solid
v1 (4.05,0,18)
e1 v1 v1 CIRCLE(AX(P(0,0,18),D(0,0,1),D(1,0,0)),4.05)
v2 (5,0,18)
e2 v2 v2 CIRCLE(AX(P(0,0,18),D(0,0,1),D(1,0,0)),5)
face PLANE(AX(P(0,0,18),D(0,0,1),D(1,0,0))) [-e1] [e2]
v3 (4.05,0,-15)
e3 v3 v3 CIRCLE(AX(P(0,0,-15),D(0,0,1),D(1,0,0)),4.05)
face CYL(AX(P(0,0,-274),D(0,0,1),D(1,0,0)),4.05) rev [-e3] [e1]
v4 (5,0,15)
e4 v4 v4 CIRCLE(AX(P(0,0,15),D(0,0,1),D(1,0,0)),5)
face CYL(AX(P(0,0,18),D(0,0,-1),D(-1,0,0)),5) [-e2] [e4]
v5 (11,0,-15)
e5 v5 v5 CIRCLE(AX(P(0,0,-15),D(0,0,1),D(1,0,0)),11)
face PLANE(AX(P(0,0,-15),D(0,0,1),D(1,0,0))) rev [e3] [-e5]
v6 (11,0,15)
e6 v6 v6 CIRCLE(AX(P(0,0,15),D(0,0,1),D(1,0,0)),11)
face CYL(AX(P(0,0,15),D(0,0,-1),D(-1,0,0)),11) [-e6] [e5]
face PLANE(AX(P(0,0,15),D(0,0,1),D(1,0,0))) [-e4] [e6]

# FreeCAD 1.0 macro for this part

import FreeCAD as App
import Part
import Sketcher

V = App.Vector
Q = App.Units.Quantity

doc = App.newDocument("Part")
body = doc.addObject("PartDesign::Body", "Body")

sketch1 = body.newObject("Sketcher::SketchObject", "Sketch")
sketch1.AttachmentSupport = (doc.getObject("XY_Plane"), [""])
sketch1.MapMode = "FlatFace"
sketch1.addGeometry(Part.Circle(V(0, 0, 0), V(0, 0, 1), 11), False)
sketch1.addConstraint([
    Sketcher.Constraint("Coincident", 0, 3, -1, 1),
    Sketcher.Constraint("Diameter", 0, Q("22 mm")),
])
pad1 = body.newObject("PartDesign::Pad", "Pad")
pad1.Profile = sketch1
pad1.Length = 30
pad1.Midplane = True

sketch2 = body.newObject("Sketcher::SketchObject", "Sketch001")
sketch2.AttachmentSupport = (doc.getObject("XY_Plane"), [""])
sketch2.MapMode = "FlatFace"
sketch2.AttachmentOffset = App.Placement(V(0, 0, 15), App.Rotation())
sketch2.addGeometry(Part.Circle(V(0, 0, 0), V(0, 0, 1), 5), False)
sketch2.addConstraint([
    Sketcher.Constraint("Coincident", 0, 3, -1, 1),
    Sketcher.Constraint("Diameter", 0, Q("10 mm")),
])
pad2 = body.newObject("PartDesign::Pad", "Pad001")
pad2.Profile = sketch2
pad2.Length = 3

sketch3 = body.newObject("Sketcher::SketchObject", "Sketch002")
sketch3.AttachmentSupport = (doc.getObject("XY_Plane"), [""])
sketch3.MapMode = "FlatFace"
sketch3.AttachmentOffset = App.Placement(V(0, 0, 15), App.Rotation())
sketch3.addGeometry(Part.Circle(V(0, 0, 0), V(0, 0, 1), 4), False)
sketch3.addConstraint([
    Sketcher.Constraint("Coincident", 0, 3, -1, 1),
    Sketcher.Constraint("Diameter", 0, Q("8.1 mm")),
])
pocket1 = body.newObject("PartDesign::Pocket", "Pocket")
pocket1.Profile = sketch3
pocket1.Length = 578
pocket1.Midplane = True

doc.recompute()
